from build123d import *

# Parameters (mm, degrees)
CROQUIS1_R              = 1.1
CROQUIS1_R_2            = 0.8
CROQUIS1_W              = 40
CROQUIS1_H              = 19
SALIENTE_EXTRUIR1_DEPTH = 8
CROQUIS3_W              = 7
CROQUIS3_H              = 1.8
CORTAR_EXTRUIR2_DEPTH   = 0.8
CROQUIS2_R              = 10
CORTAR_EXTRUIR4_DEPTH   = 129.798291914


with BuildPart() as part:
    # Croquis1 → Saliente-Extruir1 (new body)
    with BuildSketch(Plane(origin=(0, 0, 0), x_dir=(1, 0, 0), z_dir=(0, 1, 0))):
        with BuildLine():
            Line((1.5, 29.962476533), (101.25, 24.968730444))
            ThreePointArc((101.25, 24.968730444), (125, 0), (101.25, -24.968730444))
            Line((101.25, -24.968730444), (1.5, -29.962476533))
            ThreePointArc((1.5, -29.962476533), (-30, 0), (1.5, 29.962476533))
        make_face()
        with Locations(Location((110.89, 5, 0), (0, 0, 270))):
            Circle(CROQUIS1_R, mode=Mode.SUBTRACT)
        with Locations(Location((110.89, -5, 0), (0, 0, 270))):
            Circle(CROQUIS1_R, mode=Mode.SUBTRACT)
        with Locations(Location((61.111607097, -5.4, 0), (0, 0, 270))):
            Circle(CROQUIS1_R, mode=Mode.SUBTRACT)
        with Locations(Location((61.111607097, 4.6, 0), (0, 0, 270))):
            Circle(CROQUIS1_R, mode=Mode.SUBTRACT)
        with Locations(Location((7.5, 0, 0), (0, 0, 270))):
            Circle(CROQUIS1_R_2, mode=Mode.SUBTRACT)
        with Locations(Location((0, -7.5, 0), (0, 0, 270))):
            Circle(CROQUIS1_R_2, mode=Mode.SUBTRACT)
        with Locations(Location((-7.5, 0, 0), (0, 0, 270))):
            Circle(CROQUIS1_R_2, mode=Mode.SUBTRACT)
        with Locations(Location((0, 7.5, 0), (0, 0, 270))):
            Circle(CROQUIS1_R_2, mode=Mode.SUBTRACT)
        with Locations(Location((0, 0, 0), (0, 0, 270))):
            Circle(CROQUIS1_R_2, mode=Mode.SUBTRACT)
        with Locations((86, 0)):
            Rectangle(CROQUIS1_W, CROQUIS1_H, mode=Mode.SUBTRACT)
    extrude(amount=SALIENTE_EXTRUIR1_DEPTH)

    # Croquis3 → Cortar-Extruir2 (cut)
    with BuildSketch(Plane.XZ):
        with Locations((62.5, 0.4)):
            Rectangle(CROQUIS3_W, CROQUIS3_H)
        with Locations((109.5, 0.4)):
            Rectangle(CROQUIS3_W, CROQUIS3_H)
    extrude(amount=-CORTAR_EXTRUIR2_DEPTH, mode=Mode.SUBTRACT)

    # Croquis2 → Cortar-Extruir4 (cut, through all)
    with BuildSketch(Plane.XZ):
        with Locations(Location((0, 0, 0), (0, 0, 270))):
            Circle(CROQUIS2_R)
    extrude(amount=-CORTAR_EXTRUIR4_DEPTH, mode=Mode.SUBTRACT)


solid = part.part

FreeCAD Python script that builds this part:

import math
import FreeCAD as App
import Part
import Sketcher
from FreeCAD import Vector
Q = App.Units.Quantity


def add_polygon(sketch, points):
    """Adds a closed chain of lines whose ends are joined by coincident constraints."""
    first, n = sketch.GeometryCount, len(points)
    for a, b in zip(points, points[1:] + points[:1]):
        sketch.addGeometry(Part.LineSegment(App.Vector(*a, 0), App.Vector(*b, 0)), False)
    for i in range(n):
        sketch.addConstraint(Sketcher.Constraint("Coincident", first + i, 2, first + (i + 1) % n, 1))

doc = App.newDocument("Part")
body = doc.addObject("PartDesign::Body", "Body")

# Sketch on XZ plane
sketch1 = body.newObject("Sketcher::SketchObject", "Sketch")
sketch1.AttachmentSupport = (doc.getObject("XZ_Plane"), [""])
sketch1.MapMode = "FlatFace"
sketch1.addGeometry(Part.LineSegment(Vector(101.25, -24.96873, 0), Vector(1.5, -29.962477, 0)), False)  # 0
sketch1.addGeometry(Part.ArcOfCircle(Part.Circle(Vector(0, 0, 0), Vector(0, 0, 1), 30), math.radians(87.134016), math.radians(272.865984)), False)  # 1
sketch1.addGeometry(Part.LineSegment(Vector(1.5, 29.962477, 0), Vector(101.25, 24.96873, 0)), False)  # 2
sketch1.addGeometry(Part.ArcOfCircle(Part.Circle(Vector(100, 0, 0), Vector(0, 0, 1), 25), math.radians(-87.134016), math.radians(87.134016)), False)  # 3
sketch1.addGeometry(Part.Circle(Vector(110.89, 5, 0), Vector(0, 0, 1), 1.1), False)  # 4
sketch1.addGeometry(Part.Circle(Vector(61.111607, 5.4, 0), Vector(0, 0, 1), 1.1), False)  # 5
sketch1.addGeometry(Part.Circle(Vector(0, 7.5, 0), Vector(0, 0, 1), 0.8), False)  # 6
add_polygon(sketch1, [(66, 9.5), (66, -9.5), (106, -9.5), (106, 9.5)])  # lines 7-10
sketch1.addGeometry(Part.Circle(Vector(61.111607, -4.6, 0), Vector(0, 0, 1), 1.1), False)  # 11
sketch1.addGeometry(Part.Circle(Vector(110.89, -5, 0), Vector(0, 0, 1), 1.1), False)  # 12
sketch1.addGeometry(Part.Circle(Vector(7.5, 0, 0), Vector(0, 0, 1), 0.8), False)  # 13
sketch1.addGeometry(Part.Circle(Vector(0, 0, 0), Vector(0, 0, 1), 0.8), False)  # 14
sketch1.addGeometry(Part.Circle(Vector(-7.5, 0, 0), Vector(0, 0, 1), 0.8), False)  # 15
sketch1.addGeometry(Part.Circle(Vector(0, -7.5, 0), Vector(0, 0, 1), 0.8), False)  # 16
sketch1.addConstraint([
    Sketcher.Constraint("Tangent", 0, 2, 1, 2),
    Sketcher.Constraint("Tangent", 1, 1, 2, 1),
    Sketcher.Constraint("Tangent", 2, 2, 3, 2),
    Sketcher.Constraint("Tangent", 3, 1, 0, 1),
    Sketcher.Constraint("Vertical", 7),
    Sketcher.Constraint("Horizontal", 8),
    Sketcher.Constraint("Vertical", 9),
    Sketcher.Constraint("Horizontal", 10),
    Sketcher.Constraint("Coincident", 1, 3, -1, 1),
    Sketcher.Constraint("Coincident", 14, 3, -1, 1),
    Sketcher.Constraint("Equal", 4, 5),
    Sketcher.Constraint("Equal", 5, 11),
    Sketcher.Constraint("Equal", 11, 12),
    Sketcher.Constraint("Equal", 6, 13),
    Sketcher.Constraint("Equal", 13, 14),
    Sketcher.Constraint("Equal", 14, 15),
    Sketcher.Constraint("Equal", 15, 16),
    Sketcher.Constraint("Symmetric", 13, 3, 15, 3, -1, 1),
    Sketcher.Constraint("Symmetric", 6, 3, 16, 3, -1, 1),
    Sketcher.Constraint("Symmetric", 4, 3, 12, 3, -1),
    Sketcher.Constraint("PointOnObject", 3, 3, -1),
    Sketcher.Constraint("PointOnObject", 6, 3, -2),
    Sketcher.Constraint("PointOnObject", 13, 3, -1),
    Sketcher.Constraint("Vertical", 5, 3, 11, 3),
    Sketcher.Constraint("Radius", 1, Q("30 mm")),
    Sketcher.Constraint("Radius", 3, Q("25 mm")),
    Sketcher.Constraint("Diameter", 4, Q("2.2 mm")),
    Sketcher.Constraint("Diameter", 6, Q("1.6 mm")),
    Sketcher.Constraint("DistanceX", 8, 1, 8, 2, Q("40 mm")),
    Sketcher.Constraint("DistanceY", 7, 2, 7, 1, Q("19 mm")),
    Sketcher.Constraint("DistanceX", -1, 1, 3, 3, Q("100 mm")),
    Sketcher.Constraint("DistanceY", -1, 1, 4, 3, Q("5 mm")),
    Sketcher.Constraint("DistanceX", -1, 1, 7, 2, Q("66 mm")),
    Sketcher.Constraint("DistanceY", 11, 3, 5, 3, Q("10 mm")),
    Sketcher.Constraint("DistanceX", 15, 3, 13, 3, Q("15 mm")),
    Sketcher.Constraint("DistanceY", 16, 3, 6, 3, Q("15 mm")),
    Sketcher.Constraint("DistanceY", -1, 1, 5, 3, Q("5.4 mm")),
    Sketcher.Constraint("DistanceY", 7, 2, -1, 1, Q("9.5 mm")),
    Sketcher.Constraint("DistanceX", -1, 1, 4, 3, Q("110.89 mm")),
    Sketcher.Constraint("DistanceX", -1, 1, 5, 3, Q("61.111607 mm")),
])
pad1 = body.newObject("PartDesign::Pad", "Pad")
pad1.Profile = sketch1
pad1.Length = 8
pad1.Reversed = True

# Sketch on XZ plane
sketch2 = body.newObject("Sketcher::SketchObject", "Sketch001")
sketch2.AttachmentSupport = (doc.getObject("XZ_Plane"), [""])
sketch2.MapMode = "FlatFace"
add_polygon(sketch2, [(59, 1.3), (59, -0.5), (66, -0.5), (66, 1.3)])  # lines 0-3
add_polygon(sketch2, [(106, 1.3), (106, -0.5), (113, -0.5), (113, 1.3)])  # lines 4-7
sketch2.addConstraint([
    Sketcher.Constraint("Vertical", 0),
    Sketcher.Constraint("Horizontal", 1),
    Sketcher.Constraint("Vertical", 2),
    Sketcher.Constraint("Horizontal", 3),
    Sketcher.Constraint("Vertical", 4),
    Sketcher.Constraint("Horizontal", 5),
    Sketcher.Constraint("Vertical", 6),
    Sketcher.Constraint("Horizontal", 7),
    Sketcher.Constraint("Horizontal", 1, 2, 4, 2),
    Sketcher.Constraint("Horizontal", 3, 2, 6, 2),
    Sketcher.Constraint("Equal", 3, 5),
    Sketcher.Constraint("DistanceX", 1, 1, 1, 2, Q("7 mm")),
    Sketcher.Constraint("DistanceY", 0, 2, 0, 1, Q("1.8 mm")),
    Sketcher.Constraint("DistanceX", -1, 1, 0, 2, Q("59 mm")),
    Sketcher.Constraint("DistanceX", -1, 1, 4, 2, Q("106 mm")),
    Sketcher.Constraint("DistanceY", 0, 2, -1, 1, Q("0.5 mm")),
])
pocket1 = body.newObject("PartDesign::Pocket", "Pocket")
pocket1.Profile = sketch2
pocket1.Length = 0.8

# Sketch on XZ plane
sketch3 = body.newObject("Sketcher::SketchObject", "Sketch002")
sketch3.AttachmentSupport = (doc.getObject("XZ_Plane"), [""])
sketch3.MapMode = "FlatFace"
sketch3.addGeometry(Part.Circle(Vector(0, 0, 0), Vector(0, 0, 1), 10), False)
sketch3.addConstraint([
    Sketcher.Constraint("Coincident", 0, 3, -1, 1),
    Sketcher.Constraint("Diameter", 0, Q("20 mm")),
])
pocket2 = body.newObject("PartDesign::Pocket", "Pocket001")
pocket2.Profile = sketch3
pocket2.Type = "ThroughAll"

doc.recompute()
